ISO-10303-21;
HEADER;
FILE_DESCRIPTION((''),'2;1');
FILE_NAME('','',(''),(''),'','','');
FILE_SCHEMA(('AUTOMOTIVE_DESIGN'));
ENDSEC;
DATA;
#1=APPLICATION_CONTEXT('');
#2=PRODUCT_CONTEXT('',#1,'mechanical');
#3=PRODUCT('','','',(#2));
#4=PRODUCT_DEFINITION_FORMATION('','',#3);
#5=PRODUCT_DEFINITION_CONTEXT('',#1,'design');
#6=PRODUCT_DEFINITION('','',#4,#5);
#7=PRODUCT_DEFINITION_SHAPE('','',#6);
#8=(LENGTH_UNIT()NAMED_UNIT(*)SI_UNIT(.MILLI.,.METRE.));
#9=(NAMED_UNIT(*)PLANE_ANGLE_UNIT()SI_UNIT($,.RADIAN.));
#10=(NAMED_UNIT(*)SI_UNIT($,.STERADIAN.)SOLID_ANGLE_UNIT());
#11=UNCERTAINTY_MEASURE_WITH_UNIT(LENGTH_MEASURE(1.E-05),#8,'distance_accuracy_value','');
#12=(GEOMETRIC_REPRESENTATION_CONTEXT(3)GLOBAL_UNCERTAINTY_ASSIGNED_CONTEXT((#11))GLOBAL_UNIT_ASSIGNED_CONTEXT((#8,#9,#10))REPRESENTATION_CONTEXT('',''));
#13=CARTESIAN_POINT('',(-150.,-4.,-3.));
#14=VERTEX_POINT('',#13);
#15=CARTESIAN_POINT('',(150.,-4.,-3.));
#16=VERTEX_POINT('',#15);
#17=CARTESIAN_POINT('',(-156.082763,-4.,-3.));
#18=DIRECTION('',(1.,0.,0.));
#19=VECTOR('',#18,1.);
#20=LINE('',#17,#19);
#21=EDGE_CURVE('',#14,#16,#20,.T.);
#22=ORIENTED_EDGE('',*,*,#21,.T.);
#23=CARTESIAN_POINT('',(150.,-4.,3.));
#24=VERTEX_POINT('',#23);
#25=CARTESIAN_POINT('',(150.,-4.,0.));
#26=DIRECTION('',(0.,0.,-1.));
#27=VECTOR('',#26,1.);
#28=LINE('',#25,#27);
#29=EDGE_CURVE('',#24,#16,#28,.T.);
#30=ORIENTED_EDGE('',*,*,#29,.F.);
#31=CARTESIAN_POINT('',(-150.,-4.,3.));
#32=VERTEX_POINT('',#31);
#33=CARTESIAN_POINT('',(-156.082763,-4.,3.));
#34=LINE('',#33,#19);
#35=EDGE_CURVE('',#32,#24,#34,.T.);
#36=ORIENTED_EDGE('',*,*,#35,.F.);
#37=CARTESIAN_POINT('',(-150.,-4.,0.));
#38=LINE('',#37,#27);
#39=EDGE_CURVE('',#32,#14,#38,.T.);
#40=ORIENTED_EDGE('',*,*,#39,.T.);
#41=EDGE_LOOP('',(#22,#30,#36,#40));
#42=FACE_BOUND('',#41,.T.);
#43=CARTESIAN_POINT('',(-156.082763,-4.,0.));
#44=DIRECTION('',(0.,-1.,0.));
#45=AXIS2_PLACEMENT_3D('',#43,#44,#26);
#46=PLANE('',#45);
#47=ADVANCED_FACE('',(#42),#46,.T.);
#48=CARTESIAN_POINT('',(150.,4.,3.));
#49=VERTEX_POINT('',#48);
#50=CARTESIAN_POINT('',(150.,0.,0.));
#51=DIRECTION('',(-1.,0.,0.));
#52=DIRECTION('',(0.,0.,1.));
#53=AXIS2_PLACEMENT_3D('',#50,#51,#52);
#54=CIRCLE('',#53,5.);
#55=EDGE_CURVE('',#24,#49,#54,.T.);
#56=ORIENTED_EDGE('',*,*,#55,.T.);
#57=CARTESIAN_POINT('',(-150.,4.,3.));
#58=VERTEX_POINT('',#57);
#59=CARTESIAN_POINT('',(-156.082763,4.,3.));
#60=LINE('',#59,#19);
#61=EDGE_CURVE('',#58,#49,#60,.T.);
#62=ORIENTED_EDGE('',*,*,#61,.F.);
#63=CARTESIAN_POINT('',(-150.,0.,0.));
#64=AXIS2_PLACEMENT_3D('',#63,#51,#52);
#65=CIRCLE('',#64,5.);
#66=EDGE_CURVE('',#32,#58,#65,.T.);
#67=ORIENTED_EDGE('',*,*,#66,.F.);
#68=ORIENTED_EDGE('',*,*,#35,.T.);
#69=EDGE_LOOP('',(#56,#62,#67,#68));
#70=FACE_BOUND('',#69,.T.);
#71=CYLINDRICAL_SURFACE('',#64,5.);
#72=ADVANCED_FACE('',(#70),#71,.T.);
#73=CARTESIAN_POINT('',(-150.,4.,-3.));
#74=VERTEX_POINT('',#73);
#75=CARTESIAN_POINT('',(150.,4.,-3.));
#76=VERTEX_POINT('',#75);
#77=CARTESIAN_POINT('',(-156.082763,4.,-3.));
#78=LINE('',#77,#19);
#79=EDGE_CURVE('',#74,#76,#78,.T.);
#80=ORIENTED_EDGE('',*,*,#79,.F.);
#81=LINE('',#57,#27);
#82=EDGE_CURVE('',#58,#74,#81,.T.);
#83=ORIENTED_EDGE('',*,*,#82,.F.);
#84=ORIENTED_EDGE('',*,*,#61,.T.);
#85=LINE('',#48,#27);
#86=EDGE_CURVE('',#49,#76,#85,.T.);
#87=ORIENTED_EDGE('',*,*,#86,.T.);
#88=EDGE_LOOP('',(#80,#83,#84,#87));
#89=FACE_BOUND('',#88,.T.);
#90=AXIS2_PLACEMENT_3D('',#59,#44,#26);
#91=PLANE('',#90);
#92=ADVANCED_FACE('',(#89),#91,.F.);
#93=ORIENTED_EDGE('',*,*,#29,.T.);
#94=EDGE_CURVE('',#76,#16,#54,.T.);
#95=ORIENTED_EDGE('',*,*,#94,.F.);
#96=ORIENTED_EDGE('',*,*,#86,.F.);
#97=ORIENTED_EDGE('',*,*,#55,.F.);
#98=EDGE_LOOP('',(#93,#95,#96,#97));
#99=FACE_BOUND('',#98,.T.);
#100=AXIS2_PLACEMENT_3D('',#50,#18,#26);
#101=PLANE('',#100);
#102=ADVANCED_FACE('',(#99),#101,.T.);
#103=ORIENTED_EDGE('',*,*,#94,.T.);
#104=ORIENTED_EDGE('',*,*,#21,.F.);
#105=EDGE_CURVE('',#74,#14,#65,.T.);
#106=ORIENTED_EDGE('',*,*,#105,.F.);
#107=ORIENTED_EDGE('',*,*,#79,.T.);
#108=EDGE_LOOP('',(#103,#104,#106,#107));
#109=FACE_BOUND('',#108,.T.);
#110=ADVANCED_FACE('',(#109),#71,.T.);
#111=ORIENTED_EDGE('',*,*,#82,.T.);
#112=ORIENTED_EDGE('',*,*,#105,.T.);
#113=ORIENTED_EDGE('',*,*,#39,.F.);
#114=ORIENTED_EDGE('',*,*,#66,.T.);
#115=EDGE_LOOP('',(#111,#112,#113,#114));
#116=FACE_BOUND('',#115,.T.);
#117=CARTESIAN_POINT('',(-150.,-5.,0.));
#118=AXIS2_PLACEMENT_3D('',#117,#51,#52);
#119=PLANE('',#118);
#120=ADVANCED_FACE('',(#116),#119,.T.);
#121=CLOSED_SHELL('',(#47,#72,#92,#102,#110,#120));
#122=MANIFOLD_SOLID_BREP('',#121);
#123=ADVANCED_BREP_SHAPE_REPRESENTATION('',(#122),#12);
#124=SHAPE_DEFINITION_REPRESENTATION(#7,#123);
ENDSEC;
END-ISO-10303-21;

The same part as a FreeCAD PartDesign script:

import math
import FreeCAD as App
import Part
import Sketcher

V = App.Vector
Q = App.Units.Quantity

doc = App.newDocument("Part")
params = doc.addObject("Spreadsheet::Sheet", "Params")
for row, (alias, value) in enumerate([
    ("sketch1_width", "300 mm"),
    ("sketch1_height", "5 mm"),
    ("revolution_angle", "360 deg"),
    ("sketch2_radius", "5 mm"),
    ("sketch2_height", "6 mm"),
    ("pocket1_length", "300 mm"),
], start=1):
    params.set(f"A{row}", alias)
    params.set(f"B{row}", "=" + value)
    params.setAlias(f"B{row}", alias)

body = doc.addObject("PartDesign::Body", "Body")

sketch1 = body.newObject("Sketcher::SketchObject", "Sketch")
sketch1.AttachmentSupport = (doc.getObject("XY_Plane"), [""])
sketch1.MapMode = "FlatFace"
sketch1.addGeometry([
    Part.LineSegment(V(-150, 0, 0), V(-150, -5, 0)),
    Part.LineSegment(V(-150, -5, 0), V(150, -5, 0)),
    Part.LineSegment(V(150, -5, 0), V(150, 0, 0)),
    Part.LineSegment(V(150, 0, 0), V(-150, 0, 0)),
], False)
sketch1.addConstraint([
    Sketcher.Constraint("Coincident", 0, 2, 1, 1),
    Sketcher.Constraint("Coincident", 1, 2, 2, 1),
    Sketcher.Constraint("Coincident", 2, 2, 3, 1),
    Sketcher.Constraint("Coincident", 3, 2, 0, 1),
    Sketcher.Constraint("Vertical", 0),
    Sketcher.Constraint("Horizontal", 1),
    Sketcher.Constraint("Vertical", 2),
    Sketcher.Constraint("Horizontal", 3),
    Sketcher.Constraint("Symmetric", 2, 2, 3, 2, -1, 1),
    Sketcher.Constraint("DistanceX", 1, 1, 1, 2, Q("300 mm")),
    Sketcher.Constraint("DistanceY", 0, 2, 0, 1, Q("5 mm")),
])
sketch1.setExpression("Constraints[9]", "Params.sketch1_width")
sketch1.setExpression("Constraints[10]", "Params.sketch1_height")
revolution = body.newObject("PartDesign::Revolution", "Revolution")
revolution.Profile = sketch1
revolution.ReferenceAxis = (sketch1, ["H_Axis"])
revolution.setExpression("Angle", "Params.revolution_angle")

sketch2 = body.newObject("Sketcher::SketchObject", "Sketch001")
sketch2.AttachmentSupport = (doc.getObject("YZ_Plane"), [""])
sketch2.MapMode = "FlatFace"
sketch2.AttachmentOffset = App.Placement(V(0, 0, -150), App.Rotation())
sketch2.addGeometry([
    Part.LineSegment(V(-4, -3, 0), V(-4, 3, 0)),
    Part.ArcOfCircle(Part.Circle(V(0, 0, 0), V(0, 0, 1), 5), math.radians(143.130102), math.radians(216.869898)),
    Part.ArcOfCircle(Part.Circle(V(0, 0, 0), V(0, 0, 1), 5), math.radians(-36.869898), math.radians(36.869898)),
    Part.LineSegment(V(4, 3, 0), V(4, -3, 0)),
], False)
sketch2.addConstraint([
    Sketcher.Constraint("Coincident", 0, 1, 1, 2),
    Sketcher.Constraint("Coincident", 1, 1, 0, 2),
    Sketcher.Constraint("Coincident", 2, 1, 3, 2),
    Sketcher.Constraint("Coincident", 3, 1, 2, 2),
    Sketcher.Constraint("Vertical", 0),
    Sketcher.Constraint("Vertical", 3),
    Sketcher.Constraint("Coincident", 1, 3, -1, 1),
    Sketcher.Constraint("Coincident", 2, 3, -1, 1),
    Sketcher.Constraint("Equal", 1, 2),
    Sketcher.Constraint("Horizontal", 0, 1, 2, 1),
    Sketcher.Constraint("Radius", 1, Q("5 mm")),
    Sketcher.Constraint("DistanceY", 0, 1, 0, 2, Q("6 mm")),
])
sketch2.setExpression("Constraints[10]", "Params.sketch2_radius")
sketch2.setExpression("Constraints[11]", "Params.sketch2_height")
pocket1 = body.newObject("PartDesign::Pocket", "Pocket")
pocket1.Profile = sketch2
pocket1.setExpression("Length", "Params.pocket1_length")
pocket1.Reversed = True

doc.recompute()
